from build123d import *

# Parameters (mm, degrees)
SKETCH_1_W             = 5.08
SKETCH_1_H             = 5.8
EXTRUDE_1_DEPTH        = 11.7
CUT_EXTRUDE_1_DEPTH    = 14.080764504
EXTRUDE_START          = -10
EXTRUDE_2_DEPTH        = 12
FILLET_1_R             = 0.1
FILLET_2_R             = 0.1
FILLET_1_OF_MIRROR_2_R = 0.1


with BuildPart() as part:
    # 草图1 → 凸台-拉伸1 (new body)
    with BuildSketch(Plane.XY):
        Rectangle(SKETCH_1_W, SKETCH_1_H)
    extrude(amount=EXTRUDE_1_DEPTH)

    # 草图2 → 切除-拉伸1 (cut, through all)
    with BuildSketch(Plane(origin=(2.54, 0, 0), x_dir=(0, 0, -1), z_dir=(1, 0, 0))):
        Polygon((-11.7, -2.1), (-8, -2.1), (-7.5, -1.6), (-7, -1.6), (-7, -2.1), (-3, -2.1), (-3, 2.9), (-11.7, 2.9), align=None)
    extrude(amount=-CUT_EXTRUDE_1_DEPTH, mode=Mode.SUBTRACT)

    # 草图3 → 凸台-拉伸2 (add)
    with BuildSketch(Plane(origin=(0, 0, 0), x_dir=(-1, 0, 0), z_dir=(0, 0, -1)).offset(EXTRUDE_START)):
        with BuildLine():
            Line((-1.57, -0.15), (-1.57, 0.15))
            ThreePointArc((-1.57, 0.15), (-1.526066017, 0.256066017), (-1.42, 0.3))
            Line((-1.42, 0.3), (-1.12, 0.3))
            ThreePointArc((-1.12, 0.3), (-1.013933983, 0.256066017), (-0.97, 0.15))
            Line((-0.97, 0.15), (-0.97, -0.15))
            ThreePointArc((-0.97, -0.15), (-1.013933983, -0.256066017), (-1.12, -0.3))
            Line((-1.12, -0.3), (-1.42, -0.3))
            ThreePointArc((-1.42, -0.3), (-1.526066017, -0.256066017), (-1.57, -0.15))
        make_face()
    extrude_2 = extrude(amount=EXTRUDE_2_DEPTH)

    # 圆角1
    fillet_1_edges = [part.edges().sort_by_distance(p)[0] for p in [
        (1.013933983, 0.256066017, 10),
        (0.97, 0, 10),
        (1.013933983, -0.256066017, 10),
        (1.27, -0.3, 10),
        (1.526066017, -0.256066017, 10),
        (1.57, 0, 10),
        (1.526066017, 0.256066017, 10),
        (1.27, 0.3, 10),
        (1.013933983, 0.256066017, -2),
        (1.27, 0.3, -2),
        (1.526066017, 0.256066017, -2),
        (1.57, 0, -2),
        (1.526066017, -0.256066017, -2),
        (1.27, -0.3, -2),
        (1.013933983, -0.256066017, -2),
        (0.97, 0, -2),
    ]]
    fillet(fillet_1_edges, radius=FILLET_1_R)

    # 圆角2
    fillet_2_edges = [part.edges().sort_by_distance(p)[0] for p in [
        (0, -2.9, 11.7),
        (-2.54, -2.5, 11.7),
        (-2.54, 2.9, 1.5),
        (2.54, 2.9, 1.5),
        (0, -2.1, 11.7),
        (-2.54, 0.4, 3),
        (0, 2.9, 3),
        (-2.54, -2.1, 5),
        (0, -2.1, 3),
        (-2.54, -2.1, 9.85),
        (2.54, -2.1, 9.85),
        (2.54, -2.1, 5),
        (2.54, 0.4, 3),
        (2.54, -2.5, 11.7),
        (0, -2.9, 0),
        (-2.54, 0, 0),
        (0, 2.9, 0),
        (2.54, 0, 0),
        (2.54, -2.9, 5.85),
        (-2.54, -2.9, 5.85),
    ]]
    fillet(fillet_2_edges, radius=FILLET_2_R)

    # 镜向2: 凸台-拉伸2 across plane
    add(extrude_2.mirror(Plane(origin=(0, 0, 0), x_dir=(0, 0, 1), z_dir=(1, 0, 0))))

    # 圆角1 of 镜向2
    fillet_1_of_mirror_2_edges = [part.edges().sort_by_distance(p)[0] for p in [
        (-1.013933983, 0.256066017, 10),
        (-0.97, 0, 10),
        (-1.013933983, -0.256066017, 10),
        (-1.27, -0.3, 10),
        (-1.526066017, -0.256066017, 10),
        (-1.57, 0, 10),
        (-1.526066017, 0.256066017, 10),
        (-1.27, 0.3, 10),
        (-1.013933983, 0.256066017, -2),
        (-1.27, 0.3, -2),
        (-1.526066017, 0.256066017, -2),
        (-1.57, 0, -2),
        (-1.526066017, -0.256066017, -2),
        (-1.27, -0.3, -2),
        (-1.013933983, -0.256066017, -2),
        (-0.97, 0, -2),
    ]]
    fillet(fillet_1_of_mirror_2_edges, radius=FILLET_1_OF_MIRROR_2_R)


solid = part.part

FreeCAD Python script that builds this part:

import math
import FreeCAD as App
import Part
import Sketcher
Q = App.Units.Quantity


def edges_at(feature, points):
    """Names of the edges that pass closest to the given points."""
    edges = feature.Shape.Edges
    near = lambda p: min(range(len(edges)), key=lambda i: edges[i].distToShape(Part.Vertex(*p))[0])
    return sorted({f"Edge{near(p) + 1}" for p in points})


def add_polygon(sketch, points):
    """Adds a closed chain of lines whose ends are joined by coincident constraints."""
    first, n = sketch.GeometryCount, len(points)
    for a, b in zip(points, points[1:] + points[:1]):
        sketch.addGeometry(Part.LineSegment(App.Vector(*a, 0), App.Vector(*b, 0)), False)
    for i in range(n):
        sketch.addConstraint(Sketcher.Constraint("Coincident", first + i, 2, first + (i + 1) % n, 1))

doc = App.newDocument("Part")
body = doc.addObject("PartDesign::Body", "Body")

sketch1 = body.newObject("Sketcher::SketchObject", "Sketch")
sketch1.AttachmentSupport = (doc.getObject("XY_Plane"), [""])
sketch1.MapMode = "FlatFace"
add_polygon(sketch1, [(-3, 3), (-3, -3), (3, -3), (3, 3)])
sketch1.addConstraint([
    Sketcher.Constraint("Vertical", 0),
    Sketcher.Constraint("Horizontal", 1),
    Sketcher.Constraint("Vertical", 2),
    Sketcher.Constraint("Horizontal", 3),
    Sketcher.Constraint("Symmetric", 0, 2, 2, 2, -1, 1),
    Sketcher.Constraint("DistanceY", 0, 2, 0, 1, 5.8),
    Sketcher.Constraint("DistanceX", 1, 1, 1, 2, 5.08),
])
pad1 = body.newObject("PartDesign::Pad", "Pad")
pad1.Profile = sketch1
pad1.Length = 11.7

sketch2 = body.newObject("Sketcher::SketchObject", "Sketch001")
sketch2.AttachmentSupport = (doc.getObject("YZ_Plane"), [""])
sketch2.MapMode = "FlatFace"
sketch2.AttachmentOffset = App.Placement(App.Vector(0, 0, 2.54), App.Rotation())
add_polygon(sketch2, [(-2.1, 11.7), (-2.1, 8), (-1.6, 7.5), (-1.6, 7), (-2.1, 7), (-2.1, 3), (2.9, 3), (2.9, 11.7)])
sketch2.addConstraint([
    Sketcher.Constraint("Vertical", 0),
    Sketcher.Constraint("Vertical", 2),
    Sketcher.Constraint("Horizontal", 3),
    Sketcher.Constraint("Vertical", 4),
    Sketcher.Constraint("Horizontal", 5),
    Sketcher.Constraint("Vertical", 6),
    Sketcher.Constraint("Horizontal", 7),
    Sketcher.Constraint("Vertical", 0, 2, 3, 2),
    Sketcher.Constraint("Equal", 3, 2),
    Sketcher.Constraint("DistanceX", 5, 1, 5, 2, 5.0),
    Sketcher.Constraint("DistanceY", 4, 2, 4, 1, 4.0),
    Sketcher.Constraint("Angle", 1, Q("-45 deg")),
    Sketcher.Constraint("DistanceX", 3, 2, 3, 1, 0.5),
    Sketcher.Constraint("DistanceY", 0, 2, 0, 1, 3.7),
    Sketcher.Constraint("DistanceY", -1, 1, 0, 2, 8.0),
    Sketcher.Constraint("DistanceX", 0, 2, -1, 1, 2.1),
])
pocket1 = body.newObject("PartDesign::Pocket", "Pocket")
pocket1.Profile = sketch2
pocket1.Type = "ThroughAll"

sketch3 = body.newObject("Sketcher::SketchObject", "Sketch002")
sketch3.AttachmentSupport = (doc.getObject("XY_Plane"), [""])
sketch3.MapMode = "FlatFace"
sketch3.AttachmentOffset = App.Placement(App.Vector(0, 0, 10), App.Rotation())
sketch3.addGeometry([
    Part.LineSegment(App.Vector(1.57, 0.15, 0), App.Vector(1.57, -0.15, 0)),
    Part.ArcOfCircle(Part.Circle(App.Vector(1.42, -0.15, 0), App.Vector(0, 0, 1), 0.15), math.radians(-90), math.radians(0)),
    Part.LineSegment(App.Vector(1.42, -0.3, 0), App.Vector(1.12, -0.3, 0)),
    Part.ArcOfCircle(Part.Circle(App.Vector(1.12, -0.15, 0), App.Vector(0, 0, 1), 0.15), math.radians(-180), math.radians(-90)),
    Part.LineSegment(App.Vector(0.97, -0.15, 0), App.Vector(0.97, 0.15, 0)),
    Part.ArcOfCircle(Part.Circle(App.Vector(1.12, 0.15, 0), App.Vector(0, 0, 1), 0.15), math.radians(90), math.radians(180)),
    Part.LineSegment(App.Vector(1.12, 0.3, 0), App.Vector(1.42, 0.3, 0)),
    Part.ArcOfCircle(Part.Circle(App.Vector(1.42, 0.15, 0), App.Vector(0, 0, 1), 0.15), math.radians(0), math.radians(90)),
], False)
sketch3.addConstraint([
    Sketcher.Constraint("Tangent", 0, 2, 1, 2),
    Sketcher.Constraint("Tangent", 1, 1, 2, 1),
    Sketcher.Constraint("Tangent", 2, 2, 3, 2),
    Sketcher.Constraint("Tangent", 3, 1, 4, 1),
    Sketcher.Constraint("Tangent", 4, 2, 5, 2),
    Sketcher.Constraint("Tangent", 5, 1, 6, 1),
    Sketcher.Constraint("Tangent", 6, 2, 7, 2),
    Sketcher.Constraint("Tangent", 7, 1, 0, 1),
    Sketcher.Constraint("Vertical", 0),
    Sketcher.Constraint("Horizontal", 2),
    Sketcher.Constraint("Vertical", 4),
    Sketcher.Constraint("Horizontal", 6),
    Sketcher.Constraint("Equal", 1, 3),
    Sketcher.Constraint("Equal", 3, 5),
    Sketcher.Constraint("Equal", 5, 7),
    Sketcher.Constraint("Equal", 6, 0),
    Sketcher.Constraint("Radius", 1, 0.15),
    Sketcher.Constraint("DistanceX", 2, 2, 2, 1, 0.3),
    Sketcher.Constraint("DistanceY", 1, 1, -1, 1, 0.3),
    Sketcher.Constraint("DistanceX", -1, 1, 1, 3, 1.42),
])
pad2 = body.newObject("PartDesign::Pad", "Pad001")
pad2.Profile = sketch3
pad2.Length = 12
pad2.Reversed = True
doc.recompute()

fillet = body.newObject("PartDesign::Fillet", "Fillet")
fillet.Base = (pad2, edges_at(pad2, [
    (1.014, 0.256, 10),
    (0.97, 0, 10),
    (1.014, -0.256, 10),
    (1.27, -0.3, 10),
    (1.526, -0.256, 10),
    (1.57, 0, 10),
    (1.526, 0.256, 10),
    (1.27, 0.3, 10),
    (1.014, 0.256, -2),
    (1.27, 0.3, -2),
    (1.526, 0.256, -2),
    (1.57, 0, -2),
    (1.526, -0.256, -2),
    (1.27, -0.3, -2),
    (1.014, -0.256, -2),
    (0.97, 0, -2),
]))
fillet.Radius = 0.1
doc.recompute()

fillet2 = body.newObject("PartDesign::Fillet", "Fillet001")
fillet2.Base = (fillet, edges_at(fillet, [
    (0, -2.9, 11.7),
    (-2.54, -2.5, 11.7),
    (-2.54, 2.9, 1.5),
    (2.54, 2.9, 1.5),
    (0, -2.1, 11.7),
    (-2.54, 0.4, 3),
    (0, 2.9, 3),
    (-2.54, -2.1, 5),
    (0, -2.1, 3),
    (-2.54, -2.1, 9.85),
    (2.54, -2.1, 9.85),
    (2.54, -2.1, 5),
    (2.54, 0.4, 3),
    (2.54, -2.5, 11.7),
    (0, -2.9, 0),
    (-2.54, 0, 0),
    (0, 2.9, 0),
    (2.54, 0, 0),
    (2.54, -2.9, 5.85),
    (-2.54, -2.9, 5.85),
]))
fillet2.Radius = 0.1
doc.recompute()

mirrored = body.newObject("PartDesign::Mirrored", "Mirrored")
mirrored.Originals = [pad2]
mirrored.MirrorPlane = (doc.getObject("YZ_Plane"), [""])
body.Tip = mirrored
doc.recompute()

fillet3 = body.newObject("PartDesign::Fillet", "Fillet002")
fillet3.Base = (mirrored, edges_at(mirrored, [
    (-1.014, 0.256, 10),
    (-0.97, 0, 10),
    (-1.014, -0.256, 10),
    (-1.27, -0.3, 10),
    (-1.526, -0.256, 10),
    (-1.57, 0, 10),
    (-1.526, 0.256, 10),
    (-1.27, 0.3, 10),
    (-1.014, 0.256, -2),
    (-1.27, 0.3, -2),
    (-1.526, 0.256, -2),
    (-1.57, 0, -2),
    (-1.526, -0.256, -2),
    (-1.27, -0.3, -2),
    (-1.014, -0.256, -2),
    (-0.97, 0, -2),
]))
fillet3.Radius = 0.1

doc.recompute()
